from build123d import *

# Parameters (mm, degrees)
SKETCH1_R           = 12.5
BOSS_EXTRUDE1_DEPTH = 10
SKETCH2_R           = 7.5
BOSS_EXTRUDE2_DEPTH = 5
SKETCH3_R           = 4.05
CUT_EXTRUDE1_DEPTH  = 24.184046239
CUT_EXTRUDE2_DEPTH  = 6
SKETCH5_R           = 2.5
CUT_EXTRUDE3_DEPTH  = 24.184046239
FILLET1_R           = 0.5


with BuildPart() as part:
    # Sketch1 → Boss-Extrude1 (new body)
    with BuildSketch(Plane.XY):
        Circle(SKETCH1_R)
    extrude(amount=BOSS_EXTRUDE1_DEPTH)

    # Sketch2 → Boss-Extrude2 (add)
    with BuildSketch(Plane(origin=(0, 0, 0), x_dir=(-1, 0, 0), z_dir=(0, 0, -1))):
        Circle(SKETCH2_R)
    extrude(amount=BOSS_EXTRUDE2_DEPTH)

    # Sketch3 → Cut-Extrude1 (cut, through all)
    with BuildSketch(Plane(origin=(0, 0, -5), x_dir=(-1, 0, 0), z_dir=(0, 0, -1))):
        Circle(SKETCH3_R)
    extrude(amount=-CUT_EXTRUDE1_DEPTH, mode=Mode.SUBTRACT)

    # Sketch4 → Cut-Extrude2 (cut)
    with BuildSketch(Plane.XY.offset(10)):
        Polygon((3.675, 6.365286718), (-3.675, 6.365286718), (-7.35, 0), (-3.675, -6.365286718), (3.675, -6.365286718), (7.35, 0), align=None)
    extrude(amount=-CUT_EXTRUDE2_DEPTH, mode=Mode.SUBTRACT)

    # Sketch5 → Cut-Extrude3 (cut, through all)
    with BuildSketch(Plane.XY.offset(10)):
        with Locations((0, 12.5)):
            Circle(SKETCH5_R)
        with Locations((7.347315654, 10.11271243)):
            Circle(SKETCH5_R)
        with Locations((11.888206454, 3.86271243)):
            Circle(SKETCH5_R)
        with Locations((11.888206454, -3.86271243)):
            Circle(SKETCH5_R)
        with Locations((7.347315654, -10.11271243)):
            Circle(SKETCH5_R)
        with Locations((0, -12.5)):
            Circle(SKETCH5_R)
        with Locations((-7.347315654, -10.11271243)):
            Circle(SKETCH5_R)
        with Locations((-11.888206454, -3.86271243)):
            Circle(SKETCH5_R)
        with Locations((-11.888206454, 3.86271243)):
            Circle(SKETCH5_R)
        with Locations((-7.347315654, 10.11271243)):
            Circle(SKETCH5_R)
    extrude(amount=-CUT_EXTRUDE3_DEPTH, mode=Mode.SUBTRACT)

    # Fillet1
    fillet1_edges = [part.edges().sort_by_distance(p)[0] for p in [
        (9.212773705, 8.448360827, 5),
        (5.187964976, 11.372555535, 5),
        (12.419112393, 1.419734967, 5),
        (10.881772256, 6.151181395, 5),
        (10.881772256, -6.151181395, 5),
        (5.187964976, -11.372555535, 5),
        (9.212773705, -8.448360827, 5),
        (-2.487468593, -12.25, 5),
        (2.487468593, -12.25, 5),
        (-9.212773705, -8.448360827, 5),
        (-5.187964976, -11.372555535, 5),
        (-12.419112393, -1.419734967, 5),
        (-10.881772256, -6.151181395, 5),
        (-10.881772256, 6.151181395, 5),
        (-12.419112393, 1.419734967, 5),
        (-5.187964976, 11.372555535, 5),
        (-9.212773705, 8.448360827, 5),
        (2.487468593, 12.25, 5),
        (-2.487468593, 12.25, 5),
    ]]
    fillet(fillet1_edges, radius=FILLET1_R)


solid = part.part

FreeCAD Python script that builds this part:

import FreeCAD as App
import Part
import Sketcher
Q = App.Units.Quantity


def edges_at(feature, points):
    """Names of the edges that pass closest to the given points."""
    edges = feature.Shape.Edges
    near = lambda p: min(range(len(edges)), key=lambda i: edges[i].distToShape(Part.Vertex(*p))[0])
    return sorted({f"Edge{near(p) + 1}" for p in points})

doc = App.newDocument("Part")
body = doc.addObject("PartDesign::Body", "Body")

# Sketch on XY plane
sketch1 = body.newObject("Sketcher::SketchObject", "Sketch")
sketch1.AttachmentSupport = (doc.getObject("XY_Plane"), [""])
sketch1.MapMode = "FlatFace"
sketch1.addGeometry(Part.Circle(App.Vector(0, 0, 0), App.Vector(0, 0, 1), 12.5), False)
sketch1.addConstraint([
    Sketcher.Constraint("Coincident", 0, 3, -1, 1),
    Sketcher.Constraint("Diameter", 0, 25.0),
])
pad1 = body.newObject("PartDesign::Pad", "Pad")
pad1.Profile = sketch1
pad1.Length = 10

# Sketch on XY plane
sketch2 = body.newObject("Sketcher::SketchObject", "Sketch001")
sketch2.AttachmentSupport = (doc.getObject("XY_Plane"), [""])
sketch2.MapMode = "FlatFace"
sketch2.addGeometry(Part.Circle(App.Vector(0, 0, 0), App.Vector(0, 0, 1), 7.5), False)
sketch2.addConstraint([
    Sketcher.Constraint("Coincident", 0, 3, -1, 1),
    Sketcher.Constraint("Diameter", 0, 15.0),
])
pad2 = body.newObject("PartDesign::Pad", "Pad001")
pad2.Profile = sketch2
pad2.Length = 5
pad2.Reversed = True

# Sketch on XY plane
sketch3 = body.newObject("Sketcher::SketchObject", "Sketch002")
sketch3.AttachmentSupport = (doc.getObject("XY_Plane"), [""])
sketch3.MapMode = "FlatFace"
sketch3.AttachmentOffset = App.Placement(App.Vector(0, 0, -5), App.Rotation())
sketch3.addGeometry(Part.Circle(App.Vector(0, 0, 0), App.Vector(0, 0, 1), 4.05), False)
sketch3.addConstraint([
    Sketcher.Constraint("Coincident", 0, 3, -1, 1),
    Sketcher.Constraint("Diameter", 0, 8.1),
])
pocket1 = body.newObject("PartDesign::Pocket", "Pocket")
pocket1.Profile = sketch3
pocket1.Type = "ThroughAll"
pocket1.Reversed = True

# Sketch on XY plane
sketch4 = body.newObject("Sketcher::SketchObject", "Sketch003")
sketch4.AttachmentSupport = (doc.getObject("XY_Plane"), [""])
sketch4.MapMode = "FlatFace"
sketch4.AttachmentOffset = App.Placement(App.Vector(0, 0, 10), App.Rotation())
sketch4.addGeometry([
    Part.LineSegment(App.Vector(3.675, 6.365287, 0), App.Vector(-3.675, 6.365287, 0)),  # 0
    Part.LineSegment(App.Vector(-3.675, 6.365287, 0), App.Vector(-7.35, 0, 0)),  # 1
    Part.LineSegment(App.Vector(-7.35, 0, 0), App.Vector(-3.675, -6.365287, 0)),  # 2
    Part.LineSegment(App.Vector(-3.675, -6.365287, 0), App.Vector(3.675, -6.365287, 0)),  # 3
    Part.LineSegment(App.Vector(3.675, -6.365287, 0), App.Vector(7.35, 0, 0)),  # 4
    Part.LineSegment(App.Vector(7.35, 0, 0), App.Vector(3.675, 6.365287, 0)),  # 5
], False)
sketch4.addConstraint([
    Sketcher.Constraint("Coincident", 0, 2, 1, 1),
    Sketcher.Constraint("Coincident", 1, 2, 2, 1),
    Sketcher.Constraint("Coincident", 2, 2, 3, 1),
    Sketcher.Constraint("Coincident", 3, 2, 4, 1),
    Sketcher.Constraint("Coincident", 4, 2, 5, 1),
    Sketcher.Constraint("Coincident", 5, 2, 0, 1),
    Sketcher.Constraint("Horizontal", 0),
    Sketcher.Constraint("Horizontal", 3),
    Sketcher.Constraint("Symmetric", 0, 2, 3, 2, -1, 1),
    Sketcher.Constraint("Symmetric", 1, 2, 4, 2, -1, 1),
    Sketcher.Constraint("PointOnObject", 1, 2, -1),
    Sketcher.Constraint("Parallel", 2, 5),
    Sketcher.Constraint("Vertical", 0, 2, 2, 2),
    Sketcher.Constraint("Angle", 1, Q("-120 deg")),
    Sketcher.Constraint("DistanceX", 0, 2, 0, 1, 7.35),
    Sketcher.Constraint("DistanceX", 1, 2, 4, 2, 14.7),
])
pocket2 = body.newObject("PartDesign::Pocket", "Pocket001")
pocket2.Profile = sketch4
pocket2.Length = 6

# Sketch on XY plane
sketch5 = body.newObject("Sketcher::SketchObject", "Sketch004")
sketch5.AttachmentSupport = (doc.getObject("XY_Plane"), [""])
sketch5.MapMode = "FlatFace"
sketch5.AttachmentOffset = App.Placement(App.Vector(0, 0, 10), App.Rotation())
sketch5.addGeometry([
    Part.Circle(App.Vector(0, 12.5, 0), App.Vector(0, 0, 1), 2.5),  # 0
    Part.Circle(App.Vector(7.347316, 10.112712, 0), App.Vector(0, 0, 1), 2.5),  # 1
    Part.Circle(App.Vector(11.888206, 3.862712, 0), App.Vector(0, 0, 1), 2.5),  # 2
    Part.Circle(App.Vector(11.888206, -3.862712, 0), App.Vector(0, 0, 1), 2.5),  # 3
    Part.Circle(App.Vector(7.347316, -10.112712, 0), App.Vector(0, 0, 1), 2.5),  # 4
    Part.Circle(App.Vector(0, -12.5, 0), App.Vector(0, 0, 1), 2.5),  # 5
    Part.Circle(App.Vector(-7.347316, -10.112712, 0), App.Vector(0, 0, 1), 2.5),  # 6
    Part.Circle(App.Vector(-11.888206, -3.862712, 0), App.Vector(0, 0, 1), 2.5),  # 7
    Part.Circle(App.Vector(-11.888206, 3.862712, 0), App.Vector(0, 0, 1), 2.5),  # 8
    Part.Circle(App.Vector(-7.347316, 10.112712, 0), App.Vector(0, 0, 1), 2.5),  # 9
], False)
sketch5.addConstraint([
    Sketcher.Constraint("Equal", 0, 1),
    Sketcher.Constraint("Equal", 1, 2),
    Sketcher.Constraint("Equal", 2, 3),
    Sketcher.Constraint("Equal", 3, 4),
    Sketcher.Constraint("Equal", 4, 5),
    Sketcher.Constraint("Equal", 5, 6),
    Sketcher.Constraint("Equal", 6, 7),
    Sketcher.Constraint("Equal", 7, 8),
    Sketcher.Constraint("Equal", 8, 9),
    Sketcher.Constraint("Symmetric", 0, 3, 5, 3, -1, 1),
    Sketcher.Constraint("Symmetric", 1, 3, 6, 3, -1, 1),
    Sketcher.Constraint("Symmetric", 2, 3, 7, 3, -1, 1),
    Sketcher.Constraint("Symmetric", 3, 3, 8, 3, -1, 1),
    Sketcher.Constraint("Symmetric", 4, 3, 9, 3, -1, 1),
    Sketcher.Constraint("Symmetric", 4, 3, 6, 3, -2),
    Sketcher.Constraint("Symmetric", 3, 3, 7, 3, -2),
    Sketcher.Constraint("PointOnObject", 0, 3, -2),
    Sketcher.Constraint("Diameter", 0, 5.0),
    Sketcher.Constraint("DistanceY", 5, 3, 0, 3, 25.0),
    Sketcher.Constraint("DistanceY", 2, 3, 1, 3, 6.25),
    Sketcher.Constraint("DistanceX", 1, 3, 2, 3, 4.540891),
    Sketcher.Constraint("DistanceX", 6, 3, 4, 3, 14.694631),
    Sketcher.Constraint("DistanceY", -1, 1, 1, 3, 10.112712),
])
pocket3 = body.newObject("PartDesign::Pocket", "Pocket002")
pocket3.Profile = sketch5
pocket3.Type = "ThroughAll"
doc.recompute()

fillet = body.newObject("PartDesign::Fillet", "Fillet")
fillet.Base = (pocket3, edges_at(pocket3, [
    (9.213, 8.448, 5),
    (5.188, 11.373, 5),
    (12.419, 1.42, 5),
    (10.882, 6.151, 5),
    (10.882, -6.151, 5),
    (5.188, -11.373, 5),
    (9.213, -8.448, 5),
    (-2.487, -12.25, 5),
    (2.487, -12.25, 5),
    (-9.213, -8.448, 5),
    (-5.188, -11.373, 5),
    (-12.419, -1.42, 5),
    (-10.882, -6.151, 5),
    (-10.882, 6.151, 5),
    (-12.419, 1.42, 5),
    (-5.188, 11.373, 5),
    (-9.213, 8.448, 5),
    (2.487, 12.25, 5),
    (-2.487, 12.25, 5),
]))
fillet.Radius = 0.5

doc.recompute()
